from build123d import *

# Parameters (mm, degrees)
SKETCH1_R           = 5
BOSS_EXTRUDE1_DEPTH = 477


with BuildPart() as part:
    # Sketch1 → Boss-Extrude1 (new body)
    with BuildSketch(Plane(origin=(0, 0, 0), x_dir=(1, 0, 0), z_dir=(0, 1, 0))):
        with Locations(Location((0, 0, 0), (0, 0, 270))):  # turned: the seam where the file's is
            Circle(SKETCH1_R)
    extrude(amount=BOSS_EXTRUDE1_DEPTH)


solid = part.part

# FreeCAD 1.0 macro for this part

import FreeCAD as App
import Part
import Sketcher
Q = App.Units.Quantity

doc = App.newDocument("Part")
body = doc.addObject("PartDesign::Body", "Body")

# Sketch on XZ plane
sketch1 = body.newObject("Sketcher::SketchObject", "Sketch")
sketch1.AttachmentSupport = (doc.getObject("XZ_Plane"), [""])
sketch1.MapMode = "FlatFace"
sketch1.addGeometry(Part.Circle(App.Vector(0, 0, 0), App.Vector(0, 0, 1), 5), False)
sketch1.addConstraint([
    Sketcher.Constraint("Coincident", 0, 3, -1, 1),
    Sketcher.Constraint("Diameter", 0, Q("10 mm")),
])
pad1 = body.newObject("PartDesign::Pad", "Pad")
pad1.Profile = sketch1
pad1.Length = 477
pad1.Reversed = True

doc.recompute()
